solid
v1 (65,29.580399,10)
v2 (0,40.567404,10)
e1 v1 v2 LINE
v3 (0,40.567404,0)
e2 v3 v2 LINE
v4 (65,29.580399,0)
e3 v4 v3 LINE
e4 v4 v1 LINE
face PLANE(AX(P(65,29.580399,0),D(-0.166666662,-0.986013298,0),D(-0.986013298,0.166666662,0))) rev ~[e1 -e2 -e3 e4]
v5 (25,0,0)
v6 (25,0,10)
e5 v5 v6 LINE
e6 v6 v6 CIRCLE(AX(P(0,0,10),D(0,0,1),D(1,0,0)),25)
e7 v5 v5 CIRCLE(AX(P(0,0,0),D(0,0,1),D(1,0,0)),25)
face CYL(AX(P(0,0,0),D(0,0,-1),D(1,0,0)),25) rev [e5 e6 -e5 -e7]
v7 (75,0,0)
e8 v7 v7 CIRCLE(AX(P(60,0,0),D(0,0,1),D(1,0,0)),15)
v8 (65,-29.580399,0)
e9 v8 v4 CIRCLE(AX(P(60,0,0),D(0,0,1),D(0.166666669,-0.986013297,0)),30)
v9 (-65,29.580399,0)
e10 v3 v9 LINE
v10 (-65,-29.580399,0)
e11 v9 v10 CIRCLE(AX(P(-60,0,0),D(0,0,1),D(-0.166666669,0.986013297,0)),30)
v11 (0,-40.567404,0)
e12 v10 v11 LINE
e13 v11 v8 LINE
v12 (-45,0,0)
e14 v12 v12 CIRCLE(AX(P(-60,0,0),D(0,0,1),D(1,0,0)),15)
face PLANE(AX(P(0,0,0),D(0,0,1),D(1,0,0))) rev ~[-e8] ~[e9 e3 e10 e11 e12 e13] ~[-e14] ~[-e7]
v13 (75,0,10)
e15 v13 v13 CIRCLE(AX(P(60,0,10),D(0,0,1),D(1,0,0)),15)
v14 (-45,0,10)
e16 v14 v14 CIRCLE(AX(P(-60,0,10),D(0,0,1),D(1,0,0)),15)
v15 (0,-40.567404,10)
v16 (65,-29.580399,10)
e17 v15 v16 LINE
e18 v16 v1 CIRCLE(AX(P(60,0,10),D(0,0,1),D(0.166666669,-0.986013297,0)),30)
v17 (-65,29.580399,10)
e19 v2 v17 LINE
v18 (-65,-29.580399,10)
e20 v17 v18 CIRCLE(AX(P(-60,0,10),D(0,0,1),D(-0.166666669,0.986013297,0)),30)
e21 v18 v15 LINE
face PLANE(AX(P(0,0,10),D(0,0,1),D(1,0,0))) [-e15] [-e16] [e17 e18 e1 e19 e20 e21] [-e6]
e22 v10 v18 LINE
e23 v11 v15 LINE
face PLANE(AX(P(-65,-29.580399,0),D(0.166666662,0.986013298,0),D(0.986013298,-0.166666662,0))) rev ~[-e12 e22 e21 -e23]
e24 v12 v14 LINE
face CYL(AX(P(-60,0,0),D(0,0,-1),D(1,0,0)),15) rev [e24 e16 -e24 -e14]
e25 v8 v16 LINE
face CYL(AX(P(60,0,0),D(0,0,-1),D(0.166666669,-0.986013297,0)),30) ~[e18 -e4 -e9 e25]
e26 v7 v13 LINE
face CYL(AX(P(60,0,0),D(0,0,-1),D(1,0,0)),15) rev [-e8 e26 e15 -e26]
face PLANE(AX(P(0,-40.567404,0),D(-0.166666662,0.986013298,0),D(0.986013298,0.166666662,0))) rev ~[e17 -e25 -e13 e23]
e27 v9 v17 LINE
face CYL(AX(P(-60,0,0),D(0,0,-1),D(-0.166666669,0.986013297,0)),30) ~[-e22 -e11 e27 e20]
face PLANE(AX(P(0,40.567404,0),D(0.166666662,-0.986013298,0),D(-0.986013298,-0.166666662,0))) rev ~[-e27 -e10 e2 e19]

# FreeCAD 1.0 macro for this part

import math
import FreeCAD as App
import Part
import Sketcher

V = App.Vector

doc = App.newDocument("Part")
params = doc.addObject("Spreadsheet::Sheet", "Params")
for row, (alias, value) in enumerate([
    ("sketch1_diameter", "30 mm"),
    ("sketch1_diameter2", "50 mm"),
    ("sketch1_radius", "30 mm"),
    ("pad1_length", "10 mm"),
], start=1):
    params.set(f"A{row}", alias)
    params.set(f"B{row}", "=" + value)
    params.setAlias(f"B{row}", alias)

body = doc.addObject("PartDesign::Body", "Body")

# Sketch on XY plane
sketch1 = body.newObject("Sketcher::SketchObject", "Sketch")
sketch1.AttachmentSupport = (doc.getObject("XY_Plane"), [""])
sketch1.MapMode = "FlatFace"
sketch1.addGeometry(Part.LineSegment(V(0, -40.567404, 0), V(65, -29.580399, 0)), False)
sketch1.addGeometry(Part.ArcOfCircle(Part.Circle(V(60, 0, 0), V(0, 0, 1), 30), math.radians(-80.405932), math.radians(80.405932)), False)
sketch1.addGeometry(Part.LineSegment(V(65, 29.580399, 0), V(0, 40.567404, 0)), False)
sketch1.addGeometry(Part.LineSegment(V(0, 40.567404, 0), V(-65, 29.580399, 0)), False)
sketch1.addGeometry(Part.ArcOfCircle(Part.Circle(V(-60, 0, 0), V(0, 0, 1), 30), math.radians(99.594068), math.radians(260.405932)), False)
sketch1.addGeometry(Part.LineSegment(V(-65, -29.580399, 0), V(0, -40.567404, 0)), False)
sketch1.addGeometry(Part.Circle(V(-60, 0, 0), V(0, 0, 1), 15), False)
sketch1.addGeometry(Part.Circle(V(0, 0, 0), V(0, 0, 1), 25), False)
sketch1.addGeometry(Part.Circle(V(60, 0, 0), V(0, 0, 1), 15), False)
sketch1.addConstraint(Sketcher.Constraint("Tangent", 0, 2, 1, 1))
sketch1.addConstraint(Sketcher.Constraint("Tangent", 1, 2, 2, 1))
sketch1.addConstraint(Sketcher.Constraint("Coincident", 2, 2, 3, 1))
sketch1.addConstraint(Sketcher.Constraint("Tangent", 3, 2, 4, 1))
sketch1.addConstraint(Sketcher.Constraint("Tangent", 4, 2, 5, 1))
sketch1.addConstraint(Sketcher.Constraint("Coincident", 5, 2, 0, 1))
sketch1.addConstraint(Sketcher.Constraint("Coincident", 7, 3, -1, 1))
sketch1.addConstraint(Sketcher.Constraint("Coincident", 6, 3, 4, 3))
sketch1.addConstraint(Sketcher.Constraint("Coincident", 8, 3, 1, 3))
sketch1.addConstraint(Sketcher.Constraint("Equal", 1, 4))
sketch1.addConstraint(Sketcher.Constraint("Equal", 6, 8))
sketch1.addConstraint(Sketcher.Constraint("Symmetric", 1, 3, 4, 3, -1, 1))
sketch1.addConstraint(Sketcher.Constraint("Symmetric", 2, 2, 5, 2, -1, 1))
sketch1.addConstraint(Sketcher.Constraint("Symmetric", 1, 2, 3, 2, -2))
sketch1.addConstraint(Sketcher.Constraint("Diameter", 6, 30.0))
sketch1.addConstraint(Sketcher.Constraint("Diameter", 7, 50.0))
sketch1.addConstraint(Sketcher.Constraint("Radius", 1, 30.0))
sketch1.addConstraint(Sketcher.Constraint("DistanceX", -1, 1, 1, 3, 60.0))
sketch1.addConstraint(Sketcher.Constraint("DistanceX", -1, 1, 0, 2, 65.0))
sketch1.setExpression("Constraints[14]", "Params.sketch1_diameter")
sketch1.setExpression("Constraints[15]", "Params.sketch1_diameter2")
sketch1.setExpression("Constraints[16]", "Params.sketch1_radius")
pad1 = body.newObject("PartDesign::Pad", "Pad")
pad1.Profile = sketch1
pad1.setExpression("Length", "Params.pad1_length")

doc.recompute()
